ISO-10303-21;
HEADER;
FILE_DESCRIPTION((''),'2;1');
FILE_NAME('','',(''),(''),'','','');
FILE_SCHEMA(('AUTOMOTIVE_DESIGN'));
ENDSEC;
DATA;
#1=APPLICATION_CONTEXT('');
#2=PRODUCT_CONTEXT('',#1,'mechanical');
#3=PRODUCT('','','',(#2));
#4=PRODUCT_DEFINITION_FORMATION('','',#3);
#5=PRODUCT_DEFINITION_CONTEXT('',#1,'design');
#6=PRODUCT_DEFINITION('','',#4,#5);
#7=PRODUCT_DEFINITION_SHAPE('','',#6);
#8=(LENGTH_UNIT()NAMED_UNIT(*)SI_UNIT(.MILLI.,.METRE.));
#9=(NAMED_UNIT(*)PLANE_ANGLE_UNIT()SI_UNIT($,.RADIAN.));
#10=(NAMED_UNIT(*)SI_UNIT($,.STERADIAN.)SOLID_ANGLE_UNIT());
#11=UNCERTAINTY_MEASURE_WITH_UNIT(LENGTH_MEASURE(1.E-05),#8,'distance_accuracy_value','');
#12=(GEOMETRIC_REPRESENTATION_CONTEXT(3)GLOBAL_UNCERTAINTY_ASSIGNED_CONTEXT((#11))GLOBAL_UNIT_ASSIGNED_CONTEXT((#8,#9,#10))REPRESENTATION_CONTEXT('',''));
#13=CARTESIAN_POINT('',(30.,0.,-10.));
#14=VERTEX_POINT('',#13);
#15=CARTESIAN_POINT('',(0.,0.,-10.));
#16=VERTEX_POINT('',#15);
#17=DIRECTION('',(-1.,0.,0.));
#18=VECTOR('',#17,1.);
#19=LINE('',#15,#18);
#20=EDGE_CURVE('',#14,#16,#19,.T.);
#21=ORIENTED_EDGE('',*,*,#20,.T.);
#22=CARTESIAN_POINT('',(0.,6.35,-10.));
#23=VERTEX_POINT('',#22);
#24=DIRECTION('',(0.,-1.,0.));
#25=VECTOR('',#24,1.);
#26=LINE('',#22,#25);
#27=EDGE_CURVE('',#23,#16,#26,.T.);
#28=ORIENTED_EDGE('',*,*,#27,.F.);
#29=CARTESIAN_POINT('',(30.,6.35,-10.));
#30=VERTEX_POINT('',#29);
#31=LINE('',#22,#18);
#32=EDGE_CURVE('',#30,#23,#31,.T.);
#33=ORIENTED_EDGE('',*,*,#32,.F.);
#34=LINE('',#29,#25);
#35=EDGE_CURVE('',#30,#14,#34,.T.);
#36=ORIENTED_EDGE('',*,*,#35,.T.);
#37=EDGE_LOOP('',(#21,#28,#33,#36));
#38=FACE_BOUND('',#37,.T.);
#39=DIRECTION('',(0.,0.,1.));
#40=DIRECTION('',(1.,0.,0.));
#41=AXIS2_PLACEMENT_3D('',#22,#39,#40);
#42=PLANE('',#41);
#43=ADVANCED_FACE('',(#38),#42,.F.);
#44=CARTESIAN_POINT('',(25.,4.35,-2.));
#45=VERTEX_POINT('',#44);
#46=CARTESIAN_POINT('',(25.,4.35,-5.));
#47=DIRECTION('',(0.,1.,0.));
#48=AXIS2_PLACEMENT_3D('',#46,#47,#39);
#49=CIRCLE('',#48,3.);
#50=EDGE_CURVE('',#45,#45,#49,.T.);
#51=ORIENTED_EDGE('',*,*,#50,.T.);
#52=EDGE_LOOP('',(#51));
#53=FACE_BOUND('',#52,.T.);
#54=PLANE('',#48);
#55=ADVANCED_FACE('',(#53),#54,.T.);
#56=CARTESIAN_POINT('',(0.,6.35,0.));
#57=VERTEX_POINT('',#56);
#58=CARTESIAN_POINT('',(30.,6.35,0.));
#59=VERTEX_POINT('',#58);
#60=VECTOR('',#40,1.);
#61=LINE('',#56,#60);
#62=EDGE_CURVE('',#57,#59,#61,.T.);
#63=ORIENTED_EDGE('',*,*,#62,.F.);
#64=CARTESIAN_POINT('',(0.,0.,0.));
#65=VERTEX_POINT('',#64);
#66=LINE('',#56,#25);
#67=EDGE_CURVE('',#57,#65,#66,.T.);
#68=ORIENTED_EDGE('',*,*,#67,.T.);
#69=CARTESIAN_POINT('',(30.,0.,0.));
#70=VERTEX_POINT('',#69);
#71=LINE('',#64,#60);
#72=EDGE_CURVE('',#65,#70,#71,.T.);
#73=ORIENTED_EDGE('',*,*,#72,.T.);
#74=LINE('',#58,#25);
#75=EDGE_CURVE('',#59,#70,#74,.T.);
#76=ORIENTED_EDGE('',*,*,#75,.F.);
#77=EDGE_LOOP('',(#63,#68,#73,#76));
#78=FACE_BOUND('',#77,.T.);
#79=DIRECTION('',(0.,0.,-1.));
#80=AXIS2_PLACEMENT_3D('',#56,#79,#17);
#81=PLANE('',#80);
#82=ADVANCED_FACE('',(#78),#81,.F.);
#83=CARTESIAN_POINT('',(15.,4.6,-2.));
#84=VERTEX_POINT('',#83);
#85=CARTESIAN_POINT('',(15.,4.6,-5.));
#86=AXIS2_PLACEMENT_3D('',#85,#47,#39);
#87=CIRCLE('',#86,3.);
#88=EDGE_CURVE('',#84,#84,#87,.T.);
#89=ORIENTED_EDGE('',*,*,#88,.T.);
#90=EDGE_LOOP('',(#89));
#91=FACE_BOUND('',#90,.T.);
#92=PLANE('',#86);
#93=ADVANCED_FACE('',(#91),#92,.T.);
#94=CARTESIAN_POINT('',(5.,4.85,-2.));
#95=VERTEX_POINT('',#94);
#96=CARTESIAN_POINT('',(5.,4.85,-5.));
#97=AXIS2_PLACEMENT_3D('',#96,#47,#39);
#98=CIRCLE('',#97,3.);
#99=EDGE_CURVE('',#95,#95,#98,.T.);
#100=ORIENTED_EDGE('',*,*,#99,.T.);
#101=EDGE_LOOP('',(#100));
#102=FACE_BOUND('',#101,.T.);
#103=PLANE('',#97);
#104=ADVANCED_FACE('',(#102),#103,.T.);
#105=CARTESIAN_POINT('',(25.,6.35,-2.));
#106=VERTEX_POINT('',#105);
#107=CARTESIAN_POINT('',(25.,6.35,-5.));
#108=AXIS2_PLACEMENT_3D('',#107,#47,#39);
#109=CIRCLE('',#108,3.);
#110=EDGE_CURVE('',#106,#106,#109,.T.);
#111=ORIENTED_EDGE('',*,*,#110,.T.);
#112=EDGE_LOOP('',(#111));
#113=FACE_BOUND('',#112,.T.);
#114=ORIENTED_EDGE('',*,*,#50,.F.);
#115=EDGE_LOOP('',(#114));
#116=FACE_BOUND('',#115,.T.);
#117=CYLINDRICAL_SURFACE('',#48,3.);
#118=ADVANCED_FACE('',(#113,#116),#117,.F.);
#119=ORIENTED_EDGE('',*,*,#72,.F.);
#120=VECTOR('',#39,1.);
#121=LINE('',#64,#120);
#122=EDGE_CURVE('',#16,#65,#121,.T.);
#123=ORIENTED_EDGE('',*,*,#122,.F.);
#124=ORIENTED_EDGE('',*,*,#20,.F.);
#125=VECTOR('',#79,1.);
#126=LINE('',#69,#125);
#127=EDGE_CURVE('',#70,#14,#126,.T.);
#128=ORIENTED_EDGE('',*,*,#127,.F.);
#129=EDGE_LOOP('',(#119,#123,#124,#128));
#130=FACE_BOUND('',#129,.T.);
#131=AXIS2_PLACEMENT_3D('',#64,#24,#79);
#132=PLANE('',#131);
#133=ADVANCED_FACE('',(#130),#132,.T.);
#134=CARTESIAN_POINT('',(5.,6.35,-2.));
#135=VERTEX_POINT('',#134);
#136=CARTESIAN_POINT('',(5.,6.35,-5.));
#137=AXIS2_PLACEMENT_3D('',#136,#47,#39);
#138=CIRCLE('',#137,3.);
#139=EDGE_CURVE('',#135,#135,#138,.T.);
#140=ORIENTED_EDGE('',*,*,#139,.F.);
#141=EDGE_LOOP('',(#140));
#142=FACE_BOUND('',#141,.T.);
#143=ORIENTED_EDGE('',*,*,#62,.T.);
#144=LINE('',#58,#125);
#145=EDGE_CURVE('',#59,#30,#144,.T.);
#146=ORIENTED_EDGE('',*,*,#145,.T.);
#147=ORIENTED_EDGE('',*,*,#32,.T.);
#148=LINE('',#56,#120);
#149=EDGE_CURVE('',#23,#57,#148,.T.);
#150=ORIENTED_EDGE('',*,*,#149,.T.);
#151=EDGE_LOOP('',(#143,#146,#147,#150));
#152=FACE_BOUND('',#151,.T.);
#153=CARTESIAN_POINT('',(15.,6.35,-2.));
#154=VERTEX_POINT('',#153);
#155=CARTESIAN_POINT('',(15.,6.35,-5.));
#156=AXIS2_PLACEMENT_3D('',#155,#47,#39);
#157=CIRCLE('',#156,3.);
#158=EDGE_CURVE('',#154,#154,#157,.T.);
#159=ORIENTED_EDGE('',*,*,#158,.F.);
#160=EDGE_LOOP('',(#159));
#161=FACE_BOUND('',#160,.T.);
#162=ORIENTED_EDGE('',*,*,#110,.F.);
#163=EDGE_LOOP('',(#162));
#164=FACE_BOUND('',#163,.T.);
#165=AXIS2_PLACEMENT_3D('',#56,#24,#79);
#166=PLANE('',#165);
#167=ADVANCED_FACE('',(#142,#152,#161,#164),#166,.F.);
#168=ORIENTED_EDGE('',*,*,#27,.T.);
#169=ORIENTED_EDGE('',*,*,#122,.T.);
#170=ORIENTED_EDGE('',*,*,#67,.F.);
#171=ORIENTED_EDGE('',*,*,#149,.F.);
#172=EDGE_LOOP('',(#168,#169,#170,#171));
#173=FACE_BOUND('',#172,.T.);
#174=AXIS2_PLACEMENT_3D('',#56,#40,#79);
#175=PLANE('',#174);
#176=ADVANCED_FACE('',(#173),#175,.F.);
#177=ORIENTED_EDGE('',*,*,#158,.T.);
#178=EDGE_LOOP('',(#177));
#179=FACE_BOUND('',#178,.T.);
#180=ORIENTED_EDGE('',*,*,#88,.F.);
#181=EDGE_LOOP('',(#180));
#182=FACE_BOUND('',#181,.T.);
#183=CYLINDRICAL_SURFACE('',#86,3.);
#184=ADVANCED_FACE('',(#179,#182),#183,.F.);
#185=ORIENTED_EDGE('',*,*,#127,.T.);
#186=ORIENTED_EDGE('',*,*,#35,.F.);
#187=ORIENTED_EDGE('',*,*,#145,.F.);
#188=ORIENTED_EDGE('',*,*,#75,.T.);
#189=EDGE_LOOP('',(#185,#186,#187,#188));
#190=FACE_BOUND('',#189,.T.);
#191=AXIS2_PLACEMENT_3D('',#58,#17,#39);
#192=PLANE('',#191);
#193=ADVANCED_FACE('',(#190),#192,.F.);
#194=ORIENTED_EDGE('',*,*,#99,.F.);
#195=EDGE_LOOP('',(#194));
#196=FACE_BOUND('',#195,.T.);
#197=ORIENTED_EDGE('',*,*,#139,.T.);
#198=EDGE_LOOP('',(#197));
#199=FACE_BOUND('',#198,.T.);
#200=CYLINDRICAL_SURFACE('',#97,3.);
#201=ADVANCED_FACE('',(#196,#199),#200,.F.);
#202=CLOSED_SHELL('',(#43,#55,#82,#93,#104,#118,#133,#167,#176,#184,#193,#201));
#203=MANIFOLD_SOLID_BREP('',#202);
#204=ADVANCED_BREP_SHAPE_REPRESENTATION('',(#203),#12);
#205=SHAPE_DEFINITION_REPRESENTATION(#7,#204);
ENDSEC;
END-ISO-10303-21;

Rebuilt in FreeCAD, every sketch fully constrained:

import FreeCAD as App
import Part
import Sketcher
from FreeCAD import Vector
Q = App.Units.Quantity


def add_polygon(sketch, points):
    """Adds a closed chain of lines whose ends are joined by coincident constraints."""
    first, n = sketch.GeometryCount, len(points)
    for a, b in zip(points, points[1:] + points[:1]):
        sketch.addGeometry(Part.LineSegment(App.Vector(*a, 0), App.Vector(*b, 0)), False)
    for i in range(n):
        sketch.addConstraint(Sketcher.Constraint("Coincident", first + i, 2, first + (i + 1) % n, 1))

doc = App.newDocument("Part")
body = doc.addObject("PartDesign::Body", "Body")

# Sketch on XZ plane
sketch1 = body.newObject("Sketcher::SketchObject", "Sketch")
sketch1.AttachmentSupport = (doc.getObject("XZ_Plane"), [""])
sketch1.MapMode = "FlatFace"
add_polygon(sketch1, [(0, -10), (0, 0), (30, 0), (30, -10)])  # lines 0-3
sketch1.addConstraint(Sketcher.Constraint("Vertical", 0))
sketch1.addConstraint(Sketcher.Constraint("Horizontal", 1))
sketch1.addConstraint(Sketcher.Constraint("Vertical", 2))
sketch1.addConstraint(Sketcher.Constraint("Horizontal", 3))
sketch1.addConstraint(Sketcher.Constraint("Coincident", 0, 2, -1, 1))
sketch1.addConstraint(Sketcher.Constraint("DistanceX", 1, 1, 1, 2, Q("30 mm")))
sketch1.addConstraint(Sketcher.Constraint("DistanceY", 0, 1, 0, 2, Q("10 mm")))
pad1 = body.newObject("PartDesign::Pad", "Pad")
pad1.Profile = sketch1
pad1.Length = 6.35
pad1.Reversed = True

# Sketch on XZ plane
sketch2 = body.newObject("Sketcher::SketchObject", "Sketch001")
sketch2.AttachmentSupport = (doc.getObject("XZ_Plane"), [""])
sketch2.MapMode = "FlatFace"
sketch2.AttachmentOffset = App.Placement(Vector(0, 0, -6.35), App.Rotation())
sketch2.addGeometry(Part.Circle(Vector(15, -5, 0), Vector(0, 0, 1), 3), False)
sketch2.addConstraint(Sketcher.Constraint("Diameter", 0, Q("6 mm")))
sketch2.addConstraint(Sketcher.Constraint("DistanceX", -1, 1, 0, 3, Q("15 mm")))
sketch2.addConstraint(Sketcher.Constraint("DistanceY", 0, 3, -1, 1, Q("5 mm")))
pocket1 = body.newObject("PartDesign::Pocket", "Pocket")
pocket1.Profile = sketch2
pocket1.Length = 1.75
pocket1.Reversed = True

# Sketch on XZ plane
sketch3 = body.newObject("Sketcher::SketchObject", "Sketch002")
sketch3.AttachmentSupport = (doc.getObject("XZ_Plane"), [""])
sketch3.MapMode = "FlatFace"
sketch3.AttachmentOffset = App.Placement(Vector(0, 0, -6.35), App.Rotation())
sketch3.addGeometry(Part.Circle(Vector(5, -5, 0), Vector(0, 0, 1), 3), False)
sketch3.addConstraint(Sketcher.Constraint("Diameter", 0, Q("6 mm")))
sketch3.addConstraint(Sketcher.Constraint("DistanceX", -1, 1, 0, 3, Q("5 mm")))
sketch3.addConstraint(Sketcher.Constraint("DistanceY", 0, 3, -1, 1, Q("5 mm")))
pocket2 = body.newObject("PartDesign::Pocket", "Pocket001")
pocket2.Profile = sketch3
pocket2.Length = 1.5
pocket2.Reversed = True

# Sketch on XZ plane
sketch4 = body.newObject("Sketcher::SketchObject", "Sketch003")
sketch4.AttachmentSupport = (doc.getObject("XZ_Plane"), [""])
sketch4.MapMode = "FlatFace"
sketch4.AttachmentOffset = App.Placement(Vector(0, 0, -6.35), App.Rotation())
sketch4.addGeometry(Part.Circle(Vector(25, -5, 0), Vector(0, 0, 1), 3), False)
sketch4.addConstraint(Sketcher.Constraint("Diameter", 0, Q("6 mm")))
sketch4.addConstraint(Sketcher.Constraint("DistanceX", -1, 1, 0, 3, Q("25 mm")))
sketch4.addConstraint(Sketcher.Constraint("DistanceY", 0, 3, -1, 1, Q("5 mm")))
pocket3 = body.newObject("PartDesign::Pocket", "Pocket002")
pocket3.Profile = sketch4
pocket3.Length = 2
pocket3.Reversed = True

doc.recompute()
